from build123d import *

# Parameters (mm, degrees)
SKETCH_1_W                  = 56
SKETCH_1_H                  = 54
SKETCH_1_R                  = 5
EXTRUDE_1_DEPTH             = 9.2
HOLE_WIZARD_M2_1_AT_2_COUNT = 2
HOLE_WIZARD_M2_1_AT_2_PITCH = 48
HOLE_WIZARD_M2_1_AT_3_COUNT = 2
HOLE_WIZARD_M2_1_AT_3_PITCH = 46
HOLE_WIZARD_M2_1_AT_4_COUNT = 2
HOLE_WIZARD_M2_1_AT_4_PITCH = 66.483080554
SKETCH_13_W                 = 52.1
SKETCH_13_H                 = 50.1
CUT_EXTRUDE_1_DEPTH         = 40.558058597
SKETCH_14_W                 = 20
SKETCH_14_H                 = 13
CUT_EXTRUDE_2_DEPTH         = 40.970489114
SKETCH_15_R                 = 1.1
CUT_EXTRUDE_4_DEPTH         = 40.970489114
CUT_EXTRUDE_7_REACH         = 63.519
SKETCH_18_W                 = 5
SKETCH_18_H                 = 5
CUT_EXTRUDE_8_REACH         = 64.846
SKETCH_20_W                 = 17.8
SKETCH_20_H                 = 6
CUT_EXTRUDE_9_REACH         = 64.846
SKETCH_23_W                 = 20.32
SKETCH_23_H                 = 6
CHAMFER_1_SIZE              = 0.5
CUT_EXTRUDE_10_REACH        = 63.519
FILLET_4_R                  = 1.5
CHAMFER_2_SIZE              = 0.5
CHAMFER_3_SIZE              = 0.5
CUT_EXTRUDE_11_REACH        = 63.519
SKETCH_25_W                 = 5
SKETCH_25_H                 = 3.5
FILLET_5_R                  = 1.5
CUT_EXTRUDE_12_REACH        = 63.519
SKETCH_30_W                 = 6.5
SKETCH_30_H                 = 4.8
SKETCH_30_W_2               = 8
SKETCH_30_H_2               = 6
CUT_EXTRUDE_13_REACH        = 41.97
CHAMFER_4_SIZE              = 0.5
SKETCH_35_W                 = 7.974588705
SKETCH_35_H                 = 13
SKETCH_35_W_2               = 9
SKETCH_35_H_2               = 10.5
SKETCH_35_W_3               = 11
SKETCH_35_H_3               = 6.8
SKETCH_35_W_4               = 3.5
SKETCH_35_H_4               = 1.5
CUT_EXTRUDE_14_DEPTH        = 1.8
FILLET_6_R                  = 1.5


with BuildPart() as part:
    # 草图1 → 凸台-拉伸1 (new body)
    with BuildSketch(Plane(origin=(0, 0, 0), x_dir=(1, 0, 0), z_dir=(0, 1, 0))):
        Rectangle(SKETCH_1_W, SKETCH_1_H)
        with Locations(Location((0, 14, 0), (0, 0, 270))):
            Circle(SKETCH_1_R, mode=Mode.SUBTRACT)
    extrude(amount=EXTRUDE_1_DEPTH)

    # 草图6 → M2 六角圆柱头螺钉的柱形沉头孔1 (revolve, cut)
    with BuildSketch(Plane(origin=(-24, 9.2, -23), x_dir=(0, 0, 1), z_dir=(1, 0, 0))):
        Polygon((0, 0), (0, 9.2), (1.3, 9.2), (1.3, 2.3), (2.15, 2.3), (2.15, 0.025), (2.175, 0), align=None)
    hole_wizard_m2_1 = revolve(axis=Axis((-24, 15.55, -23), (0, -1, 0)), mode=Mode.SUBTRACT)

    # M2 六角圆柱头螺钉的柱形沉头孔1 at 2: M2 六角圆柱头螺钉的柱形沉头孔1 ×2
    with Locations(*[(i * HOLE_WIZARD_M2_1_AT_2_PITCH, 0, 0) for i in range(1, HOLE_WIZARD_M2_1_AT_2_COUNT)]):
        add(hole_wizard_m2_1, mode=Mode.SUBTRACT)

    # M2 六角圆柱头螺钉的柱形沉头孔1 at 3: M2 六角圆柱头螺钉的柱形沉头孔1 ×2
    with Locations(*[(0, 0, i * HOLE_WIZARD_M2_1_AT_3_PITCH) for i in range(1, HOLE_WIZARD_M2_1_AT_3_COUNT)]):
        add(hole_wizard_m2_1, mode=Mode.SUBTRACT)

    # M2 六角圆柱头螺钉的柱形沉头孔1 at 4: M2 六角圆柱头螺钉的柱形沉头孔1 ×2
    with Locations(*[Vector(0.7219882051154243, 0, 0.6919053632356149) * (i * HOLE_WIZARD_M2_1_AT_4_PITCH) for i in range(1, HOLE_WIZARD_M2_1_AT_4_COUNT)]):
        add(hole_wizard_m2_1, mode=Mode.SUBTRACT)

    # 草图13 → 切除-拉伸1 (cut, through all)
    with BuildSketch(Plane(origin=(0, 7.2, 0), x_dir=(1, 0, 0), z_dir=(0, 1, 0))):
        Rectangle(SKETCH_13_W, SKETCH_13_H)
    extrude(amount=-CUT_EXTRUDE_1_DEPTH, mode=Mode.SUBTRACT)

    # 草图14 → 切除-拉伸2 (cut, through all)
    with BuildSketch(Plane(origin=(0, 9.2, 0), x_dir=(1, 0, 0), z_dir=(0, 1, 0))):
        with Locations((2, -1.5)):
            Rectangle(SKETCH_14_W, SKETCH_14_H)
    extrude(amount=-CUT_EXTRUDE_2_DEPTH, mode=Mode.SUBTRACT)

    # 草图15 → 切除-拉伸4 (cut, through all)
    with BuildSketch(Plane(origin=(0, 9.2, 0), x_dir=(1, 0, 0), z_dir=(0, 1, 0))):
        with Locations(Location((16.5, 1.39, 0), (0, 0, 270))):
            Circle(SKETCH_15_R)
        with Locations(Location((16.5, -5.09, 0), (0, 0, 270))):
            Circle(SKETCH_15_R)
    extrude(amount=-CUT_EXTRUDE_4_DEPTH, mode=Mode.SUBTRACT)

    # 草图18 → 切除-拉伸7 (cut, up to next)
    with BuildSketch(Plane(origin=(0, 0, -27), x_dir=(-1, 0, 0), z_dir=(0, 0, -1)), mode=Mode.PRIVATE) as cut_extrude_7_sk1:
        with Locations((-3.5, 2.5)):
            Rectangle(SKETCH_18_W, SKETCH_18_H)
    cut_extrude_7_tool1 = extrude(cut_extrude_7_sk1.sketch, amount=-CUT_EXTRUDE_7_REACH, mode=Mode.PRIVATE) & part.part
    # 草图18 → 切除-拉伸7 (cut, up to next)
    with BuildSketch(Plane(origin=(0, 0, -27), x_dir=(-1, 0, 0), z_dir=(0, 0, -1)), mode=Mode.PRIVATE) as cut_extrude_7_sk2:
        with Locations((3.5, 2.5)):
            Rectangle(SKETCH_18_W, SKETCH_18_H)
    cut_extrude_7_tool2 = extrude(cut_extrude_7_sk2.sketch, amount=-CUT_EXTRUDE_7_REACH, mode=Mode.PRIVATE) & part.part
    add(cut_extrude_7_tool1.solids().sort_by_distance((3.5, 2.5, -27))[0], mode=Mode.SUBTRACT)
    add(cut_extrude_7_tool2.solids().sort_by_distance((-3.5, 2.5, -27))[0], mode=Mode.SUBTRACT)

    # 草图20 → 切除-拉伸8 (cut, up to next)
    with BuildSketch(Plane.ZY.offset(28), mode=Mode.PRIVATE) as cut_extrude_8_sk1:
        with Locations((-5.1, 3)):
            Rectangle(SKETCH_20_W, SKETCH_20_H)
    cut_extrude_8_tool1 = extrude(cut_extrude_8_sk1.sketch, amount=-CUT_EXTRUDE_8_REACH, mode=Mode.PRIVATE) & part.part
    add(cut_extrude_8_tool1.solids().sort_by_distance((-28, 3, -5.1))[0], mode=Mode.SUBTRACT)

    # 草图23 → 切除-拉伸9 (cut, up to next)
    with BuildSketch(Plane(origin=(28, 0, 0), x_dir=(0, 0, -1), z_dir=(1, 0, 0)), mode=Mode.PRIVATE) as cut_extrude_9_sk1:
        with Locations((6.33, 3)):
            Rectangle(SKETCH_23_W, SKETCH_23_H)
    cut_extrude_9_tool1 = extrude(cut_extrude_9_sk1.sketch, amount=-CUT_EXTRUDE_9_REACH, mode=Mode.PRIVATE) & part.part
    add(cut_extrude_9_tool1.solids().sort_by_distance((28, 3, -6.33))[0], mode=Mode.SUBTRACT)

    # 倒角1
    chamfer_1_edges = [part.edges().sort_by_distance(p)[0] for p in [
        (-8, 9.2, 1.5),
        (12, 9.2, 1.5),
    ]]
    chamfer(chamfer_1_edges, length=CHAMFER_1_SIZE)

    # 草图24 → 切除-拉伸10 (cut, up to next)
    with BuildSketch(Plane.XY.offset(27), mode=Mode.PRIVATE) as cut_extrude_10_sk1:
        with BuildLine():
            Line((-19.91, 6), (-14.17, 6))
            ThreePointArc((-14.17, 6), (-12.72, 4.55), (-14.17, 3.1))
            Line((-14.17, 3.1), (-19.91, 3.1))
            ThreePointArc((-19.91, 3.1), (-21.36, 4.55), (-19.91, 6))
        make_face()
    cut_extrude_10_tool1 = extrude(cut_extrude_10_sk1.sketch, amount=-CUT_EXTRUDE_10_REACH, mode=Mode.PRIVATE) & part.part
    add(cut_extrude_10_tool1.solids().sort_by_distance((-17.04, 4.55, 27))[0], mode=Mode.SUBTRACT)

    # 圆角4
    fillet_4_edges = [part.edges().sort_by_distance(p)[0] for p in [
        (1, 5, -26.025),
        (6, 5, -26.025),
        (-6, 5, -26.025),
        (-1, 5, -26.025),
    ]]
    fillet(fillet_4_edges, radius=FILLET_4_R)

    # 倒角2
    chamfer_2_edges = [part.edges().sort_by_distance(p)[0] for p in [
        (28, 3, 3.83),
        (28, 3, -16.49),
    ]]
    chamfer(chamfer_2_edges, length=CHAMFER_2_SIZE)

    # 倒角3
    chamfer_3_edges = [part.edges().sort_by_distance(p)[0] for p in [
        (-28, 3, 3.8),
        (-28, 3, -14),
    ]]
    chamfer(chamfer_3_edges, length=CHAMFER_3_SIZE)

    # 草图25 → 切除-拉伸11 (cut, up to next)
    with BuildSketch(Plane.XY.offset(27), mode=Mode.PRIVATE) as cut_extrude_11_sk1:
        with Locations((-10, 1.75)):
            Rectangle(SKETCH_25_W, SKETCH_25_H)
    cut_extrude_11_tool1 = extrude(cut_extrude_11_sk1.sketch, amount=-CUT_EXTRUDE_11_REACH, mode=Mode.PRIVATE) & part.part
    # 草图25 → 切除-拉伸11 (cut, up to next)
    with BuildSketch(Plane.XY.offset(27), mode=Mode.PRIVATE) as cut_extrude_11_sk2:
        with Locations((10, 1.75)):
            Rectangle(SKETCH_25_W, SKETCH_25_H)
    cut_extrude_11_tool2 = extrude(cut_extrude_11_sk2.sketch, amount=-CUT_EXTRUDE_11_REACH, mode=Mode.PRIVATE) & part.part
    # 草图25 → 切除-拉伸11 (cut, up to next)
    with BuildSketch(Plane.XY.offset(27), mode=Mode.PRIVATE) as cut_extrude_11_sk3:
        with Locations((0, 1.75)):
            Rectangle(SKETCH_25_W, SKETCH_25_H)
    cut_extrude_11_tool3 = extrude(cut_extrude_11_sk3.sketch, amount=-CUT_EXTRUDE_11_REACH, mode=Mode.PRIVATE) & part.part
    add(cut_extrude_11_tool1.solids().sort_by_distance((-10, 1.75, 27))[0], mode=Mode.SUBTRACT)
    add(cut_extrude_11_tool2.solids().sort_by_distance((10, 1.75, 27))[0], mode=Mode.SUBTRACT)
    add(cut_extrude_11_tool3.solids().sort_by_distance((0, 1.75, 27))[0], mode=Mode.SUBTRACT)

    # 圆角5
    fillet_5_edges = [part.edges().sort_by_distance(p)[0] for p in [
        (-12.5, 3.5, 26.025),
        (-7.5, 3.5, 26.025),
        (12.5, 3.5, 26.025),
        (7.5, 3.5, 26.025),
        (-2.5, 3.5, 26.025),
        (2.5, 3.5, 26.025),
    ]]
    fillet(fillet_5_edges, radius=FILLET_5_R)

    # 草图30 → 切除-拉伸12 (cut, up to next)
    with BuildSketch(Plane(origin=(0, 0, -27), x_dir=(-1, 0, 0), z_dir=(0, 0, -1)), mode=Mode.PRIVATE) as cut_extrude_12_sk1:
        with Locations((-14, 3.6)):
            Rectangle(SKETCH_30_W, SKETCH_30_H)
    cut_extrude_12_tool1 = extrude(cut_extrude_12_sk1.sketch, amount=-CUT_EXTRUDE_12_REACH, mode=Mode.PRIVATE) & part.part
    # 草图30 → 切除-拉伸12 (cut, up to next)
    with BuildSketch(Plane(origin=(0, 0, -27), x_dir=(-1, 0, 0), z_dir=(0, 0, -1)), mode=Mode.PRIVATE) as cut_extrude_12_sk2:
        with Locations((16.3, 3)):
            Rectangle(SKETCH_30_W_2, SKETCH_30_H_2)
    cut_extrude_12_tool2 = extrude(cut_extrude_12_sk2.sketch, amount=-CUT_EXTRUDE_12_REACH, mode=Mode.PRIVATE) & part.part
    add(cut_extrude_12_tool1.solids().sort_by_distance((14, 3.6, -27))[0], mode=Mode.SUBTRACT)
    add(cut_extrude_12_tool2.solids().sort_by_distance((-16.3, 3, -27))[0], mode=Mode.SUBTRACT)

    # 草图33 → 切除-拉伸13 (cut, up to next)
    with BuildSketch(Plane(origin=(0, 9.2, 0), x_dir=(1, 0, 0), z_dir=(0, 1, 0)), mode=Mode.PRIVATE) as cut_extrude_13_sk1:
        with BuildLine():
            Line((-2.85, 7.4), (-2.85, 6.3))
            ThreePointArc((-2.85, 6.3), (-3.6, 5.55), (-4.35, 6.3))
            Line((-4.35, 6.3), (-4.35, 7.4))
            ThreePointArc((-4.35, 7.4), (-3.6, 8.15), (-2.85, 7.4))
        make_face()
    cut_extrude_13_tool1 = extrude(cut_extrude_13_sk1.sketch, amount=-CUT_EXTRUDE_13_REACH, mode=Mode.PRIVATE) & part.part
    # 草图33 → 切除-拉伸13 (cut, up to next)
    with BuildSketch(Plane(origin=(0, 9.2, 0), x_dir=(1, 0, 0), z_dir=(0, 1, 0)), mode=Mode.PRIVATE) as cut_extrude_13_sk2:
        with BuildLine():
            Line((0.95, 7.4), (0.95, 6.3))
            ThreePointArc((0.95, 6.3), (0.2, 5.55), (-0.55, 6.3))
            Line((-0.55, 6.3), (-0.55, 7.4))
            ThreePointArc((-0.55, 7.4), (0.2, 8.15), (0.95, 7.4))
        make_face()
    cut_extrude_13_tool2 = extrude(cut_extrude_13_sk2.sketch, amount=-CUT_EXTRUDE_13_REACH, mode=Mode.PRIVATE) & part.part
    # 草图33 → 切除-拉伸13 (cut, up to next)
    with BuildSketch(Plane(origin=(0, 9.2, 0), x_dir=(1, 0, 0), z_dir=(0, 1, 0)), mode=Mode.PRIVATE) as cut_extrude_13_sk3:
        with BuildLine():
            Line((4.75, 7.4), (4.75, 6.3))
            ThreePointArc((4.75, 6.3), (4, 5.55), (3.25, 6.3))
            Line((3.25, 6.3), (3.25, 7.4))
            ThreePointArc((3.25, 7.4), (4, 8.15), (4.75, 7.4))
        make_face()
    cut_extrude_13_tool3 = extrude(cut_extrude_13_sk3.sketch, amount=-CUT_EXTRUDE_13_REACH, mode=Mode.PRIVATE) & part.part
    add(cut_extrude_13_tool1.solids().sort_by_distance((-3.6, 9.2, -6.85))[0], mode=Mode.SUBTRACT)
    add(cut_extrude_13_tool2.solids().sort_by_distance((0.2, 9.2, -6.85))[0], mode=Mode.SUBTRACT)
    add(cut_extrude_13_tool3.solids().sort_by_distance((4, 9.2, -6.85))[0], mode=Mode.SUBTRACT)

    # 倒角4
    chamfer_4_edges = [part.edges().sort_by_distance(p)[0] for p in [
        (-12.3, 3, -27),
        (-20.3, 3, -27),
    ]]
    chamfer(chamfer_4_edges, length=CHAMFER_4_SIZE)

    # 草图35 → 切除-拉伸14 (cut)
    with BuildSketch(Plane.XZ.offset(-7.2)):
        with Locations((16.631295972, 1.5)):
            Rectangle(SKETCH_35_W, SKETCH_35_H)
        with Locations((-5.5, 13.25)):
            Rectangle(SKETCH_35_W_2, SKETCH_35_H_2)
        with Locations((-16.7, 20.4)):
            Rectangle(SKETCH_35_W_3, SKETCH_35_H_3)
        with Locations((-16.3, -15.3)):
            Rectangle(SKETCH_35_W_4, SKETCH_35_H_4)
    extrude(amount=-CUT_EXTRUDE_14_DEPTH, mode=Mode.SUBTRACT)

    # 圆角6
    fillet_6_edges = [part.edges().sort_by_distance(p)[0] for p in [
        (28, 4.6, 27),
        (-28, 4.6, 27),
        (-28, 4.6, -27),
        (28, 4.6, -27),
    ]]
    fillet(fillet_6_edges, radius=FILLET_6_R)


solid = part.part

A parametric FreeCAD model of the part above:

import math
import FreeCAD as App
import Part
import Sketcher
Q = App.Units.Quantity


def edges_at(feature, points):
    """Names of the edges that pass closest to the given points."""
    edges = feature.Shape.Edges
    near = lambda p: min(range(len(edges)), key=lambda i: edges[i].distToShape(Part.Vertex(*p))[0])
    return sorted({f"Edge{near(p) + 1}" for p in points})

doc = App.newDocument("Part")
body = doc.addObject("PartDesign::Body", "Body")

# Sketch on XZ plane
sketch1 = body.newObject("Sketcher::SketchObject", "Sketch")
sketch1.AttachmentSupport = (doc.getObject("XZ_Plane"), [""])
sketch1.MapMode = "FlatFace"
sketch1.addGeometry(Part.LineSegment(App.Vector(-28, -27, 0), App.Vector(-28, 27, 0)), False)
sketch1.addGeometry(Part.LineSegment(App.Vector(-28, 27, 0), App.Vector(28, 27, 0)), False)
sketch1.addGeometry(Part.LineSegment(App.Vector(28, 27, 0), App.Vector(28, -27, 0)), False)
sketch1.addGeometry(Part.LineSegment(App.Vector(28, -27, 0), App.Vector(-28, -27, 0)), False)
sketch1.addGeometry(Part.Circle(App.Vector(0, -14, 0), App.Vector(0, 0, 1), 5), False)
sketch1.addConstraint(Sketcher.Constraint("Coincident", 0, 2, 1, 1))
sketch1.addConstraint(Sketcher.Constraint("Coincident", 1, 2, 2, 1))
sketch1.addConstraint(Sketcher.Constraint("Coincident", 2, 2, 3, 1))
sketch1.addConstraint(Sketcher.Constraint("Coincident", 3, 2, 0, 1))
sketch1.addConstraint(Sketcher.Constraint("Vertical", 0))
sketch1.addConstraint(Sketcher.Constraint("Horizontal", 1))
sketch1.addConstraint(Sketcher.Constraint("Vertical", 2))
sketch1.addConstraint(Sketcher.Constraint("Horizontal", 3))
sketch1.addConstraint(Sketcher.Constraint("Symmetric", 0, 2, 2, 2, -1, 1))
sketch1.addConstraint(Sketcher.Constraint("PointOnObject", 4, 3, -2))
sketch1.addConstraint(Sketcher.Constraint("Diameter", 4, 10.0))
sketch1.addConstraint(Sketcher.Constraint("DistanceX", 1, 1, 1, 2, 56.0))
sketch1.addConstraint(Sketcher.Constraint("DistanceY", 0, 1, 0, 2, 54.0))
sketch1.addConstraint(Sketcher.Constraint("DistanceY", 4, 3, -1, 1, 14.0))
pad1 = body.newObject("PartDesign::Pad", "Pad")
pad1.Profile = sketch1
pad1.Length = 9.2
pad1.Reversed = True

# Sketch on YZ plane
sketch2 = body.newObject("Sketcher::SketchObject", "Sketch001")
sketch2.AttachmentSupport = (doc.getObject("YZ_Plane"), [""])
sketch2.MapMode = "FlatFace"
sketch2.AttachmentOffset = App.Placement(App.Vector(0, 0, -24), App.Rotation())
sketch2.addGeometry(Part.LineSegment(App.Vector(0, -23, 0), App.Vector(9.2, -23, 0)), False)
sketch2.addGeometry(Part.LineSegment(App.Vector(9.2, -23, 0), App.Vector(9.2, -20.825, 0)), False)
sketch2.addGeometry(Part.LineSegment(App.Vector(9.2, -20.825, 0), App.Vector(9.175, -20.85, 0)), False)
sketch2.addGeometry(Part.LineSegment(App.Vector(9.175, -20.85, 0), App.Vector(6.9, -20.85, 0)), False)
sketch2.addGeometry(Part.LineSegment(App.Vector(6.9, -20.85, 0), App.Vector(6.9, -21.7, 0)), False)
sketch2.addGeometry(Part.LineSegment(App.Vector(6.9, -21.7, 0), App.Vector(0, -21.7, 0)), False)
sketch2.addGeometry(Part.LineSegment(App.Vector(0, -21.7, 0), App.Vector(0, -23, 0)), False)
sketch2.addGeometry(Part.LineSegment(App.Vector(9.2, -23, 0), App.Vector(0, -23, 0)), True)  # axis
sketch2.addConstraint(Sketcher.Constraint("Coincident", 0, 2, 1, 1))
sketch2.addConstraint(Sketcher.Constraint("Coincident", 1, 2, 2, 1))
sketch2.addConstraint(Sketcher.Constraint("Coincident", 2, 2, 3, 1))
sketch2.addConstraint(Sketcher.Constraint("Coincident", 3, 2, 4, 1))
sketch2.addConstraint(Sketcher.Constraint("Coincident", 4, 2, 5, 1))
sketch2.addConstraint(Sketcher.Constraint("Coincident", 5, 2, 6, 1))
sketch2.addConstraint(Sketcher.Constraint("Coincident", 6, 2, 0, 1))
sketch2.addConstraint(Sketcher.Constraint("Horizontal", 0))
sketch2.addConstraint(Sketcher.Constraint("Vertical", 1))
sketch2.addConstraint(Sketcher.Constraint("Horizontal", 3))
sketch2.addConstraint(Sketcher.Constraint("Vertical", 4))
sketch2.addConstraint(Sketcher.Constraint("Horizontal", 5))
sketch2.addConstraint(Sketcher.Constraint("Vertical", 6))
sketch2.addConstraint(Sketcher.Constraint("Horizontal", 7))
sketch2.addConstraint(Sketcher.Constraint("Coincident", 7, 1, 0, 2))
sketch2.addConstraint(Sketcher.Constraint("PointOnObject", 5, 2, -2))
sketch2.addConstraint(Sketcher.Constraint("PointOnObject", 7, 2, -2))
sketch2.addConstraint(Sketcher.Constraint("Angle", 2, Q("-135 deg")))
sketch2.addConstraint(Sketcher.Constraint("DistanceX", 0, 1, 0, 2, 9.2))
sketch2.addConstraint(Sketcher.Constraint("DistanceX", 5, 2, 5, 1, 6.9))
sketch2.addConstraint(Sketcher.Constraint("DistanceY", 6, 2, 6, 1, 1.3))
sketch2.addConstraint(Sketcher.Constraint("DistanceY", 0, 2, -1, 1, 23.0))
sketch2.addConstraint(Sketcher.Constraint("DistanceY", 4, 2, 4, 1, 0.85))
sketch2.addConstraint(Sketcher.Constraint("DistanceX", 3, 2, 3, 1, 2.275))
groove = body.newObject("PartDesign::Groove", "Groove")
groove.Profile = sketch2
groove.ReferenceAxis = (sketch2, ["Axis0"])
groove.Angle = 360
doc.recompute()

linearpattern = body.newObject("PartDesign::LinearPattern", "LinearPattern")
linearpattern.Originals = [groove]
linearpattern.Direction = (doc.getObject("X_Axis"), [""])
linearpattern.Mode = "offset"
linearpattern.Offset = 48
linearpattern.Occurrences = 2
body.Tip = linearpattern
doc.recompute()

linearpattern2 = body.newObject("PartDesign::LinearPattern", "LinearPattern001")
linearpattern2.Originals = [groove]
linearpattern2.Direction = (doc.getObject("Z_Axis"), [""])
linearpattern2.Mode = "offset"
linearpattern2.Offset = 46
linearpattern2.Occurrences = 2
body.Tip = linearpattern2
doc.recompute()

datumline = body.newObject("PartDesign::Line", "DatumLine")
datumline.Placement = App.Placement(App.Vector(0, 0, 0), App.Rotation(App.Vector(0, 0, 1), App.Vector(0.721988205, 0, 0.691905363)))
linearpattern3 = body.newObject("PartDesign::LinearPattern", "LinearPattern002")
linearpattern3.Originals = [groove]
linearpattern3.Direction = (datumline, [""])
linearpattern3.Mode = "offset"
linearpattern3.Offset = 66.483081
linearpattern3.Occurrences = 2
body.Tip = linearpattern3

# Sketch on XZ plane
sketch3 = body.newObject("Sketcher::SketchObject", "Sketch002")
sketch3.AttachmentSupport = (doc.getObject("XZ_Plane"), [""])
sketch3.MapMode = "FlatFace"
sketch3.AttachmentOffset = App.Placement(App.Vector(0, 0, -7.2), App.Rotation())
sketch3.addGeometry(Part.LineSegment(App.Vector(-26, -25, 0), App.Vector(-26, 25, 0)), False)
sketch3.addGeometry(Part.LineSegment(App.Vector(-26, 25, 0), App.Vector(26, 25, 0)), False)
sketch3.addGeometry(Part.LineSegment(App.Vector(26, 25, 0), App.Vector(26, -25, 0)), False)
sketch3.addGeometry(Part.LineSegment(App.Vector(26, -25, 0), App.Vector(-26, -25, 0)), False)
sketch3.addConstraint(Sketcher.Constraint("Coincident", 0, 2, 1, 1))
sketch3.addConstraint(Sketcher.Constraint("Coincident", 1, 2, 2, 1))
sketch3.addConstraint(Sketcher.Constraint("Coincident", 2, 2, 3, 1))
sketch3.addConstraint(Sketcher.Constraint("Coincident", 3, 2, 0, 1))
sketch3.addConstraint(Sketcher.Constraint("Vertical", 0))
sketch3.addConstraint(Sketcher.Constraint("Horizontal", 1))
sketch3.addConstraint(Sketcher.Constraint("Vertical", 2))
sketch3.addConstraint(Sketcher.Constraint("Horizontal", 3))
sketch3.addConstraint(Sketcher.Constraint("Symmetric", 0, 2, 2, 2, -1, 1))
sketch3.addConstraint(Sketcher.Constraint("DistanceX", 1, 1, 1, 2, 52.1))
sketch3.addConstraint(Sketcher.Constraint("DistanceY", 0, 1, 0, 2, 50.1))
pocket1 = body.newObject("PartDesign::Pocket", "Pocket")
pocket1.Profile = sketch3
pocket1.Type = "ThroughAll"
pocket1.Reversed = True

# Sketch on XZ plane
sketch4 = body.newObject("Sketcher::SketchObject", "Sketch003")
sketch4.AttachmentSupport = (doc.getObject("XZ_Plane"), [""])
sketch4.MapMode = "FlatFace"
sketch4.AttachmentOffset = App.Placement(App.Vector(0, 0, -9.2), App.Rotation())
sketch4.addGeometry(Part.LineSegment(App.Vector(-8, -5, 0), App.Vector(-8, 8, 0)), False)
sketch4.addGeometry(Part.LineSegment(App.Vector(-8, 8, 0), App.Vector(12, 8, 0)), False)
sketch4.addGeometry(Part.LineSegment(App.Vector(12, 8, 0), App.Vector(12, -5, 0)), False)
sketch4.addGeometry(Part.LineSegment(App.Vector(12, -5, 0), App.Vector(-8, -5, 0)), False)
sketch4.addConstraint(Sketcher.Constraint("Coincident", 0, 2, 1, 1))
sketch4.addConstraint(Sketcher.Constraint("Coincident", 1, 2, 2, 1))
sketch4.addConstraint(Sketcher.Constraint("Coincident", 2, 2, 3, 1))
sketch4.addConstraint(Sketcher.Constraint("Coincident", 3, 2, 0, 1))
sketch4.addConstraint(Sketcher.Constraint("Vertical", 0))
sketch4.addConstraint(Sketcher.Constraint("Horizontal", 1))
sketch4.addConstraint(Sketcher.Constraint("Vertical", 2))
sketch4.addConstraint(Sketcher.Constraint("Horizontal", 3))
sketch4.addConstraint(Sketcher.Constraint("DistanceX", 1, 1, 1, 2, 20.0))
sketch4.addConstraint(Sketcher.Constraint("DistanceY", 0, 1, 0, 2, 13.0))
sketch4.addConstraint(Sketcher.Constraint("DistanceX", 0, 2, -1, 1, 8.0))
sketch4.addConstraint(Sketcher.Constraint("DistanceY", -1, 1, 0, 2, 8.0))
pocket2 = body.newObject("PartDesign::Pocket", "Pocket001")
pocket2.Profile = sketch4
pocket2.Type = "ThroughAll"
pocket2.Reversed = True

# Sketch on XZ plane
sketch5 = body.newObject("Sketcher::SketchObject", "Sketch004")
sketch5.AttachmentSupport = (doc.getObject("XZ_Plane"), [""])
sketch5.MapMode = "FlatFace"
sketch5.AttachmentOffset = App.Placement(App.Vector(0, 0, -9.2), App.Rotation())
sketch5.addGeometry(Part.Circle(App.Vector(16.5, -1.4, 0), App.Vector(0, 0, 1), 1.1), False)
sketch5.addGeometry(Part.Circle(App.Vector(16.5, 5.1, 0), App.Vector(0, 0, 1), 1.1), False)
sketch5.addConstraint(Sketcher.Constraint("Equal", 0, 1))
sketch5.addConstraint(Sketcher.Constraint("Vertical", 0, 3, 1, 3))
sketch5.addConstraint(Sketcher.Constraint("Diameter", 0, 2.2))
sketch5.addConstraint(Sketcher.Constraint("DistanceX", -1, 1, 0, 3, 16.5))
sketch5.addConstraint(Sketcher.Constraint("DistanceY", 0, 3, -1, 1, 1.39))
sketch5.addConstraint(Sketcher.Constraint("DistanceY", -1, 1, 1, 3, 5.09))
pocket3 = body.newObject("PartDesign::Pocket", "Pocket002")
pocket3.Profile = sketch5
pocket3.Type = "ThroughAll"
pocket3.Reversed = True

# Sketch on XY plane
sketch6 = body.newObject("Sketcher::SketchObject", "Sketch005")
sketch6.AttachmentSupport = (doc.getObject("XY_Plane"), [""])
sketch6.MapMode = "FlatFace"
sketch6.AttachmentOffset = App.Placement(App.Vector(0, 0, -27), App.Rotation())
sketch6.addGeometry(Part.LineSegment(App.Vector(6, 5, 0), App.Vector(6, 0, 0)), False)
sketch6.addGeometry(Part.LineSegment(App.Vector(6, 0, 0), App.Vector(1, 0, 0)), False)
sketch6.addGeometry(Part.LineSegment(App.Vector(1, 0, 0), App.Vector(1, 5, 0)), False)
sketch6.addGeometry(Part.LineSegment(App.Vector(1, 5, 0), App.Vector(6, 5, 0)), False)
sketch6.addConstraint(Sketcher.Constraint("Coincident", 0, 2, 1, 1))
sketch6.addConstraint(Sketcher.Constraint("Coincident", 1, 2, 2, 1))
sketch6.addConstraint(Sketcher.Constraint("Coincident", 2, 2, 3, 1))
sketch6.addConstraint(Sketcher.Constraint("Coincident", 3, 2, 0, 1))
sketch6.addConstraint(Sketcher.Constraint("Vertical", 0))
sketch6.addConstraint(Sketcher.Constraint("Horizontal", 1))
sketch6.addConstraint(Sketcher.Constraint("Vertical", 2))
sketch6.addConstraint(Sketcher.Constraint("Horizontal", 3))
sketch6.addConstraint(Sketcher.Constraint("PointOnObject", 0, 2, -1))
sketch6.addConstraint(Sketcher.Constraint("Equal", 3, 0))
sketch6.addConstraint(Sketcher.Constraint("DistanceX", 1, 2, 1, 1, 5.0))
sketch6.addConstraint(Sketcher.Constraint("DistanceX", -1, 1, 0, 2, 6.0))
pocket4 = body.newObject("PartDesign::Pocket", "Pocket003")
pocket4.Profile = sketch6
pocket4.Type = "UpToFirst"
pocket4.Reversed = True

# Sketch on XY plane
sketch7 = body.newObject("Sketcher::SketchObject", "Sketch006")
sketch7.AttachmentSupport = (doc.getObject("XY_Plane"), [""])
sketch7.MapMode = "FlatFace"
sketch7.AttachmentOffset = App.Placement(App.Vector(0, 0, -27), App.Rotation())
sketch7.addGeometry(Part.LineSegment(App.Vector(-1, 5, 0), App.Vector(-1, 0, 0)), False)
sketch7.addGeometry(Part.LineSegment(App.Vector(-1, 0, 0), App.Vector(-6, 0, 0)), False)
sketch7.addGeometry(Part.LineSegment(App.Vector(-6, 0, 0), App.Vector(-6, 5, 0)), False)
sketch7.addGeometry(Part.LineSegment(App.Vector(-6, 5, 0), App.Vector(-1, 5, 0)), False)
sketch7.addConstraint(Sketcher.Constraint("Coincident", 0, 2, 1, 1))
sketch7.addConstraint(Sketcher.Constraint("Coincident", 1, 2, 2, 1))
sketch7.addConstraint(Sketcher.Constraint("Coincident", 2, 2, 3, 1))
sketch7.addConstraint(Sketcher.Constraint("Coincident", 3, 2, 0, 1))
sketch7.addConstraint(Sketcher.Constraint("Vertical", 0))
sketch7.addConstraint(Sketcher.Constraint("Horizontal", 1))
sketch7.addConstraint(Sketcher.Constraint("Vertical", 2))
sketch7.addConstraint(Sketcher.Constraint("Horizontal", 3))
sketch7.addConstraint(Sketcher.Constraint("PointOnObject", 0, 2, -1))
sketch7.addConstraint(Sketcher.Constraint("Equal", 3, 0))
sketch7.addConstraint(Sketcher.Constraint("DistanceX", 1, 2, 1, 1, 5.0))
sketch7.addConstraint(Sketcher.Constraint("DistanceX", 0, 2, -1, 1, 1.0))
pocket5 = body.newObject("PartDesign::Pocket", "Pocket004")
pocket5.Profile = sketch7
pocket5.Type = "UpToFirst"
pocket5.Reversed = True

# Sketch on YZ plane
sketch8 = body.newObject("Sketcher::SketchObject", "Sketch007")
sketch8.AttachmentSupport = (doc.getObject("YZ_Plane"), [""])
sketch8.MapMode = "FlatFace"
sketch8.AttachmentOffset = App.Placement(App.Vector(0, 0, -28), App.Rotation())
sketch8.addGeometry(Part.LineSegment(App.Vector(6, -14, 0), App.Vector(0, -14, 0)), False)
sketch8.addGeometry(Part.LineSegment(App.Vector(0, -14, 0), App.Vector(0, 4, 0)), False)
sketch8.addGeometry(Part.LineSegment(App.Vector(0, 4, 0), App.Vector(6, 4, 0)), False)
sketch8.addGeometry(Part.LineSegment(App.Vector(6, 4, 0), App.Vector(6, -14, 0)), False)
sketch8.addConstraint(Sketcher.Constraint("Coincident", 0, 2, 1, 1))
sketch8.addConstraint(Sketcher.Constraint("Coincident", 1, 2, 2, 1))
sketch8.addConstraint(Sketcher.Constraint("Coincident", 2, 2, 3, 1))
sketch8.addConstraint(Sketcher.Constraint("Coincident", 3, 2, 0, 1))
sketch8.addConstraint(Sketcher.Constraint("Horizontal", 0))
sketch8.addConstraint(Sketcher.Constraint("Vertical", 1))
sketch8.addConstraint(Sketcher.Constraint("Horizontal", 2))
sketch8.addConstraint(Sketcher.Constraint("Vertical", 3))
sketch8.addConstraint(Sketcher.Constraint("PointOnObject", 0, 2, -2))
sketch8.addConstraint(Sketcher.Constraint("DistanceX", 0, 2, 0, 1, 6.0))
sketch8.addConstraint(Sketcher.Constraint("DistanceY", 1, 1, 1, 2, 17.8))
sketch8.addConstraint(Sketcher.Constraint("DistanceY", 0, 2, -1, 1, 14.0))
pocket6 = body.newObject("PartDesign::Pocket", "Pocket005")
pocket6.Profile = sketch8
pocket6.Type = "UpToFirst"
pocket6.Reversed = True

# Sketch on YZ plane
sketch9 = body.newObject("Sketcher::SketchObject", "Sketch008")
sketch9.AttachmentSupport = (doc.getObject("YZ_Plane"), [""])
sketch9.MapMode = "FlatFace"
sketch9.AttachmentOffset = App.Placement(App.Vector(0, 0, 28), App.Rotation())
sketch9.addGeometry(Part.LineSegment(App.Vector(6, 4, 0), App.Vector(0, 4, 0)), False)
sketch9.addGeometry(Part.LineSegment(App.Vector(0, 4, 0), App.Vector(0, -16, 0)), False)
sketch9.addGeometry(Part.LineSegment(App.Vector(0, -16, 0), App.Vector(6, -16, 0)), False)
sketch9.addGeometry(Part.LineSegment(App.Vector(6, -16, 0), App.Vector(6, 4, 0)), False)
sketch9.addConstraint(Sketcher.Constraint("Coincident", 0, 2, 1, 1))
sketch9.addConstraint(Sketcher.Constraint("Coincident", 1, 2, 2, 1))
sketch9.addConstraint(Sketcher.Constraint("Coincident", 2, 2, 3, 1))
sketch9.addConstraint(Sketcher.Constraint("Coincident", 3, 2, 0, 1))
sketch9.addConstraint(Sketcher.Constraint("Horizontal", 0))
sketch9.addConstraint(Sketcher.Constraint("Vertical", 1))
sketch9.addConstraint(Sketcher.Constraint("Horizontal", 2))
sketch9.addConstraint(Sketcher.Constraint("Vertical", 3))
sketch9.addConstraint(Sketcher.Constraint("PointOnObject", 0, 2, -2))
sketch9.addConstraint(Sketcher.Constraint("DistanceX", 0, 2, 0, 1, 6.0))
sketch9.addConstraint(Sketcher.Constraint("DistanceY", 1, 2, 1, 1, 20.32))
sketch9.addConstraint(Sketcher.Constraint("DistanceY", -1, 1, 0, 2, 3.83))
pocket7 = body.newObject("PartDesign::Pocket", "Pocket006")
pocket7.Profile = sketch9
pocket7.Type = "UpToFirst"
doc.recompute()

chamfer = body.newObject("PartDesign::Chamfer", "Chamfer")
chamfer.Base = (pocket7, edges_at(pocket7, [(-8, 9.2, 1.5), (12, 9.2, 1.5)]))
chamfer.Size = 0.5

# Sketch on XY plane
sketch10 = body.newObject("Sketcher::SketchObject", "Sketch009")
sketch10.AttachmentSupport = (doc.getObject("XY_Plane"), [""])
sketch10.MapMode = "FlatFace"
sketch10.AttachmentOffset = App.Placement(App.Vector(0, 0, 27), App.Rotation())
sketch10.addGeometry(Part.LineSegment(App.Vector(-14.2, 6, 0), App.Vector(-19.9, 6, 0)), False)
sketch10.addGeometry(Part.ArcOfCircle(Part.Circle(App.Vector(-19.9, 4.5, 0), App.Vector(0, 0, 1), 1.4), math.radians(90), math.radians(270)), False)
sketch10.addGeometry(Part.LineSegment(App.Vector(-19.9, 3.1, 0), App.Vector(-14.2, 3.1, 0)), False)
sketch10.addGeometry(Part.ArcOfCircle(Part.Circle(App.Vector(-14.2, 4.5, 0), App.Vector(0, 0, 1), 1.4), math.radians(-90), math.radians(90)), False)
sketch10.addConstraint(Sketcher.Constraint("Tangent", 0, 2, 1, 1))
sketch10.addConstraint(Sketcher.Constraint("Tangent", 1, 2, 2, 1))
sketch10.addConstraint(Sketcher.Constraint("Tangent", 2, 2, 3, 1))
sketch10.addConstraint(Sketcher.Constraint("Tangent", 3, 2, 0, 1))
sketch10.addConstraint(Sketcher.Constraint("Horizontal", 0))
sketch10.addConstraint(Sketcher.Constraint("Horizontal", 2))
sketch10.addConstraint(Sketcher.Constraint("Radius", 1, 1.45))
sketch10.addConstraint(Sketcher.Constraint("DistanceY", -1, 1, 0, 2, 6.0))
sketch10.addConstraint(Sketcher.Constraint("DistanceX", 0, 2, 0, 1, 5.74))
sketch10.addConstraint(Sketcher.Constraint("DistanceX", 1, 3, -1, 1, 19.91))
pocket8 = body.newObject("PartDesign::Pocket", "Pocket007")
pocket8.Profile = sketch10
pocket8.Type = "UpToFirst"
doc.recompute()

fillet = body.newObject("PartDesign::Fillet", "Fillet")
fillet.Base = (pocket8, edges_at(pocket8, [
    (1, 5, -26.025),
    (6, 5, -26.025),
    (-6, 5, -26.025),
    (-1, 5, -26.025),
]))
fillet.Radius = 1.5
doc.recompute()

chamfer2 = body.newObject("PartDesign::Chamfer", "Chamfer001")
chamfer2.Base = (fillet, edges_at(fillet, [(28, 3, 3.83), (28, 3, -16.49)]))
chamfer2.Size = 0.5
doc.recompute()

chamfer3 = body.newObject("PartDesign::Chamfer", "Chamfer002")
chamfer3.Base = (chamfer2, edges_at(chamfer2, [(-28, 3, 3.8), (-28, 3, -14)]))
chamfer3.Size = 0.5

# Sketch on XY plane
sketch11 = body.newObject("Sketcher::SketchObject", "Sketch010")
sketch11.AttachmentSupport = (doc.getObject("XY_Plane"), [""])
sketch11.MapMode = "FlatFace"
sketch11.AttachmentOffset = App.Placement(App.Vector(0, 0, 27), App.Rotation())
sketch11.addGeometry(Part.LineSegment(App.Vector(-12.5, 3.5, 0), App.Vector(-12.5, 0, 0)), False)
sketch11.addGeometry(Part.LineSegment(App.Vector(-12.5, 0, 0), App.Vector(-7.5, 0, 0)), False)
sketch11.addGeometry(Part.LineSegment(App.Vector(-7.5, 0, 0), App.Vector(-7.5, 3.5, 0)), False)
sketch11.addGeometry(Part.LineSegment(App.Vector(-7.5, 3.5, 0), App.Vector(-12.5, 3.5, 0)), False)
sketch11.addConstraint(Sketcher.Constraint("Coincident", 0, 2, 1, 1))
sketch11.addConstraint(Sketcher.Constraint("Coincident", 1, 2, 2, 1))
sketch11.addConstraint(Sketcher.Constraint("Coincident", 2, 2, 3, 1))
sketch11.addConstraint(Sketcher.Constraint("Coincident", 3, 2, 0, 1))
sketch11.addConstraint(Sketcher.Constraint("Vertical", 0))
sketch11.addConstraint(Sketcher.Constraint("Horizontal", 1))
sketch11.addConstraint(Sketcher.Constraint("Vertical", 2))
sketch11.addConstraint(Sketcher.Constraint("Horizontal", 3))
sketch11.addConstraint(Sketcher.Constraint("PointOnObject", 0, 2, -1))
sketch11.addConstraint(Sketcher.Constraint("DistanceX", 1, 1, 1, 2, 5.0))
sketch11.addConstraint(Sketcher.Constraint("DistanceY", 0, 2, 0, 1, 3.5))
sketch11.addConstraint(Sketcher.Constraint("DistanceX", 0, 2, -1, 1, 12.5))
pocket9 = body.newObject("PartDesign::Pocket", "Pocket008")
pocket9.Profile = sketch11
pocket9.Type = "UpToFirst"

# Sketch on XY plane
sketch12 = body.newObject("Sketcher::SketchObject", "Sketch011")
sketch12.AttachmentSupport = (doc.getObject("XY_Plane"), [""])
sketch12.MapMode = "FlatFace"
sketch12.AttachmentOffset = App.Placement(App.Vector(0, 0, 27), App.Rotation())
sketch12.addGeometry(Part.LineSegment(App.Vector(7.5, 3.5, 0), App.Vector(7.5, 0, 0)), False)
sketch12.addGeometry(Part.LineSegment(App.Vector(7.5, 0, 0), App.Vector(12.5, 0, 0)), False)
sketch12.addGeometry(Part.LineSegment(App.Vector(12.5, 0, 0), App.Vector(12.5, 3.5, 0)), False)
sketch12.addGeometry(Part.LineSegment(App.Vector(12.5, 3.5, 0), App.Vector(7.5, 3.5, 0)), False)
sketch12.addConstraint(Sketcher.Constraint("Coincident", 0, 2, 1, 1))
sketch12.addConstraint(Sketcher.Constraint("Coincident", 1, 2, 2, 1))
sketch12.addConstraint(Sketcher.Constraint("Coincident", 2, 2, 3, 1))
sketch12.addConstraint(Sketcher.Constraint("Coincident", 3, 2, 0, 1))
sketch12.addConstraint(Sketcher.Constraint("Vertical", 0))
sketch12.addConstraint(Sketcher.Constraint("Horizontal", 1))
sketch12.addConstraint(Sketcher.Constraint("Vertical", 2))
sketch12.addConstraint(Sketcher.Constraint("Horizontal", 3))
sketch12.addConstraint(Sketcher.Constraint("PointOnObject", 0, 2, -1))
sketch12.addConstraint(Sketcher.Constraint("DistanceX", 1, 1, 1, 2, 5.0))
sketch12.addConstraint(Sketcher.Constraint("DistanceY", 0, 2, 0, 1, 3.5))
sketch12.addConstraint(Sketcher.Constraint("DistanceX", -1, 1, 0, 2, 7.5))
pocket10 = body.newObject("PartDesign::Pocket", "Pocket009")
pocket10.Profile = sketch12
pocket10.Type = "UpToFirst"

# Sketch on XY plane
sketch13 = body.newObject("Sketcher::SketchObject", "Sketch012")
sketch13.AttachmentSupport = (doc.getObject("XY_Plane"), [""])
sketch13.MapMode = "FlatFace"
sketch13.AttachmentOffset = App.Placement(App.Vector(0, 0, 27), App.Rotation())
sketch13.addGeometry(Part.LineSegment(App.Vector(-2.5, 3.5, 0), App.Vector(-2.5, 0, 0)), False)
sketch13.addGeometry(Part.LineSegment(App.Vector(-2.5, 0, 0), App.Vector(2.5, 0, 0)), False)
sketch13.addGeometry(Part.LineSegment(App.Vector(2.5, 0, 0), App.Vector(2.5, 3.5, 0)), False)
sketch13.addGeometry(Part.LineSegment(App.Vector(2.5, 3.5, 0), App.Vector(-2.5, 3.5, 0)), False)
sketch13.addConstraint(Sketcher.Constraint("Coincident", 0, 2, 1, 1))
sketch13.addConstraint(Sketcher.Constraint("Coincident", 1, 2, 2, 1))
sketch13.addConstraint(Sketcher.Constraint("Coincident", 2, 2, 3, 1))
sketch13.addConstraint(Sketcher.Constraint("Coincident", 3, 2, 0, 1))
sketch13.addConstraint(Sketcher.Constraint("Vertical", 0))
sketch13.addConstraint(Sketcher.Constraint("Horizontal", 1))
sketch13.addConstraint(Sketcher.Constraint("Vertical", 2))
sketch13.addConstraint(Sketcher.Constraint("Horizontal", 3))
sketch13.addConstraint(Sketcher.Constraint("Symmetric", 0, 2, 1, 2, -1, 1))
sketch13.addConstraint(Sketcher.Constraint("DistanceX", 1, 1, 1, 2, 5.0))
sketch13.addConstraint(Sketcher.Constraint("DistanceY", 0, 2, 0, 1, 3.5))
pocket11 = body.newObject("PartDesign::Pocket", "Pocket010")
pocket11.Profile = sketch13
pocket11.Type = "UpToFirst"
doc.recompute()

fillet2 = body.newObject("PartDesign::Fillet", "Fillet001")
fillet2.Base = (pocket11, edges_at(pocket11, [
    (-12.5, 3.5, 26.025),
    (-7.5, 3.5, 26.025),
    (12.5, 3.5, 26.025),
    (7.5, 3.5, 26.025),
    (-2.5, 3.5, 26.025),
    (2.5, 3.5, 26.025),
]))
fillet2.Radius = 1.5

# Sketch on XY plane
sketch14 = body.newObject("Sketcher::SketchObject", "Sketch013")
sketch14.AttachmentSupport = (doc.getObject("XY_Plane"), [""])
sketch14.MapMode = "FlatFace"
sketch14.AttachmentOffset = App.Placement(App.Vector(0, 0, -27), App.Rotation())
sketch14.addGeometry(Part.LineSegment(App.Vector(17.2, 6, 0), App.Vector(17.2, 1.2, 0)), False)
sketch14.addGeometry(Part.LineSegment(App.Vector(17.2, 1.2, 0), App.Vector(10.8, 1.2, 0)), False)
sketch14.addGeometry(Part.LineSegment(App.Vector(10.8, 1.2, 0), App.Vector(10.8, 6, 0)), False)
sketch14.addGeometry(Part.LineSegment(App.Vector(10.8, 6, 0), App.Vector(17.2, 6, 0)), False)
sketch14.addConstraint(Sketcher.Constraint("Coincident", 0, 2, 1, 1))
sketch14.addConstraint(Sketcher.Constraint("Coincident", 1, 2, 2, 1))
sketch14.addConstraint(Sketcher.Constraint("Coincident", 2, 2, 3, 1))
sketch14.addConstraint(Sketcher.Constraint("Coincident", 3, 2, 0, 1))
sketch14.addConstraint(Sketcher.Constraint("Vertical", 0))
sketch14.addConstraint(Sketcher.Constraint("Horizontal", 1))
sketch14.addConstraint(Sketcher.Constraint("Vertical", 2))
sketch14.addConstraint(Sketcher.Constraint("Horizontal", 3))
sketch14.addConstraint(Sketcher.Constraint("DistanceX", 1, 2, 1, 1, 6.5))
sketch14.addConstraint(Sketcher.Constraint("DistanceY", 0, 2, 0, 1, 4.8))
sketch14.addConstraint(Sketcher.Constraint("DistanceY", -1, 1, 2, 2, 6.0))
sketch14.addConstraint(Sketcher.Constraint("DistanceX", -1, 1, 0, 2, 17.25))
pocket12 = body.newObject("PartDesign::Pocket", "Pocket011")
pocket12.Profile = sketch14
pocket12.Type = "UpToFirst"
pocket12.Reversed = True

# Sketch on XY plane
sketch15 = body.newObject("Sketcher::SketchObject", "Sketch014")
sketch15.AttachmentSupport = (doc.getObject("XY_Plane"), [""])
sketch15.MapMode = "FlatFace"
sketch15.AttachmentOffset = App.Placement(App.Vector(0, 0, -27), App.Rotation())
sketch15.addGeometry(Part.LineSegment(App.Vector(-12, 6, 0), App.Vector(-12, 0, 0)), False)
sketch15.addGeometry(Part.LineSegment(App.Vector(-12, 0, 0), App.Vector(-20, 0, 0)), False)
sketch15.addGeometry(Part.LineSegment(App.Vector(-20, 0, 0), App.Vector(-20, 6, 0)), False)
sketch15.addGeometry(Part.LineSegment(App.Vector(-20, 6, 0), App.Vector(-12, 6, 0)), False)
sketch15.addConstraint(Sketcher.Constraint("Coincident", 0, 2, 1, 1))
sketch15.addConstraint(Sketcher.Constraint("Coincident", 1, 2, 2, 1))
sketch15.addConstraint(Sketcher.Constraint("Coincident", 2, 2, 3, 1))
sketch15.addConstraint(Sketcher.Constraint("Coincident", 3, 2, 0, 1))
sketch15.addConstraint(Sketcher.Constraint("Vertical", 0))
sketch15.addConstraint(Sketcher.Constraint("Horizontal", 1))
sketch15.addConstraint(Sketcher.Constraint("Vertical", 2))
sketch15.addConstraint(Sketcher.Constraint("Horizontal", 3))
sketch15.addConstraint(Sketcher.Constraint("PointOnObject", 0, 2, -1))
sketch15.addConstraint(Sketcher.Constraint("DistanceX", 1, 2, 1, 1, 8.0))
sketch15.addConstraint(Sketcher.Constraint("DistanceY", 0, 2, 0, 1, 6.0))
sketch15.addConstraint(Sketcher.Constraint("DistanceX", 0, 2, -1, 1, 12.3))
pocket13 = body.newObject("PartDesign::Pocket", "Pocket012")
pocket13.Profile = sketch15
pocket13.Type = "UpToFirst"
pocket13.Reversed = True

# Sketch on XZ plane
sketch16 = body.newObject("Sketcher::SketchObject", "Sketch015")
sketch16.AttachmentSupport = (doc.getObject("XZ_Plane"), [""])
sketch16.MapMode = "FlatFace"
sketch16.AttachmentOffset = App.Placement(App.Vector(0, 0, -9.2), App.Rotation())
sketch16.addGeometry(Part.LineSegment(App.Vector(-2.9, -6.3, 0), App.Vector(-2.9, -7.4, 0)), False)
sketch16.addGeometry(Part.ArcOfCircle(Part.Circle(App.Vector(-3.6, -7.4, 0), App.Vector(0, 0, 1), 0.8), math.radians(180), math.radians(360)), False)
sketch16.addGeometry(Part.LineSegment(App.Vector(-4.3, -7.4, 0), App.Vector(-4.3, -6.3, 0)), False)
sketch16.addGeometry(Part.ArcOfCircle(Part.Circle(App.Vector(-3.6, -6.3, 0), App.Vector(0, 0, 1), 0.8), math.radians(0), math.radians(180)), False)
sketch16.addConstraint(Sketcher.Constraint("Tangent", 0, 2, 1, 2))
sketch16.addConstraint(Sketcher.Constraint("Tangent", 1, 1, 2, 1))
sketch16.addConstraint(Sketcher.Constraint("Tangent", 2, 2, 3, 2))
sketch16.addConstraint(Sketcher.Constraint("Tangent", 3, 1, 0, 1))
sketch16.addConstraint(Sketcher.Constraint("Vertical", 0))
sketch16.addConstraint(Sketcher.Constraint("Vertical", 2))
sketch16.addConstraint(Sketcher.Constraint("Radius", 1, 0.75))
sketch16.addConstraint(Sketcher.Constraint("DistanceY", 0, 2, 0, 1, 1.1))
sketch16.addConstraint(Sketcher.Constraint("DistanceX", 1, 3, -1, 1, 3.6))
sketch16.addConstraint(Sketcher.Constraint("DistanceY", 1, 3, -1, 1, 7.4))
pocket14 = body.newObject("PartDesign::Pocket", "Pocket013")
pocket14.Profile = sketch16
pocket14.Type = "UpToFirst"
pocket14.Reversed = True

# Sketch on XZ plane
sketch17 = body.newObject("Sketcher::SketchObject", "Sketch016")
sketch17.AttachmentSupport = (doc.getObject("XZ_Plane"), [""])
sketch17.MapMode = "FlatFace"
sketch17.AttachmentOffset = App.Placement(App.Vector(0, 0, -9.2), App.Rotation())
sketch17.addGeometry(Part.LineSegment(App.Vector(0.9, -6.3, 0), App.Vector(0.9, -7.4, 0)), False)
sketch17.addGeometry(Part.ArcOfCircle(Part.Circle(App.Vector(0.2, -7.4, 0), App.Vector(0, 0, 1), 0.8), math.radians(180), math.radians(360)), False)
sketch17.addGeometry(Part.LineSegment(App.Vector(-0.6, -7.4, 0), App.Vector(-0.6, -6.3, 0)), False)
sketch17.addGeometry(Part.ArcOfCircle(Part.Circle(App.Vector(0.2, -6.3, 0), App.Vector(0, 0, 1), 0.8), math.radians(0), math.radians(180)), False)
sketch17.addConstraint(Sketcher.Constraint("Tangent", 0, 2, 1, 2))
sketch17.addConstraint(Sketcher.Constraint("Tangent", 1, 1, 2, 1))
sketch17.addConstraint(Sketcher.Constraint("Tangent", 2, 2, 3, 2))
sketch17.addConstraint(Sketcher.Constraint("Tangent", 3, 1, 0, 1))
sketch17.addConstraint(Sketcher.Constraint("Vertical", 0))
sketch17.addConstraint(Sketcher.Constraint("Vertical", 2))
sketch17.addConstraint(Sketcher.Constraint("Radius", 1, 0.75))
sketch17.addConstraint(Sketcher.Constraint("DistanceY", 0, 2, 0, 1, 1.1))
sketch17.addConstraint(Sketcher.Constraint("DistanceX", -1, 1, 1, 3, 0.2))
sketch17.addConstraint(Sketcher.Constraint("DistanceY", 1, 3, -1, 1, 7.4))
pocket15 = body.newObject("PartDesign::Pocket", "Pocket014")
pocket15.Profile = sketch17
pocket15.Type = "UpToFirst"
pocket15.Reversed = True

# Sketch on XZ plane
sketch18 = body.newObject("Sketcher::SketchObject", "Sketch017")
sketch18.AttachmentSupport = (doc.getObject("XZ_Plane"), [""])
sketch18.MapMode = "FlatFace"
sketch18.AttachmentOffset = App.Placement(App.Vector(0, 0, -9.2), App.Rotation())
sketch18.addGeometry(Part.LineSegment(App.Vector(4.8, -6.3, 0), App.Vector(4.8, -7.4, 0)), False)
sketch18.addGeometry(Part.ArcOfCircle(Part.Circle(App.Vector(4, -7.4, 0), App.Vector(0, 0, 1), 0.8), math.radians(180), math.radians(360)), False)
sketch18.addGeometry(Part.LineSegment(App.Vector(3.2, -7.4, 0), App.Vector(3.2, -6.3, 0)), False)
sketch18.addGeometry(Part.ArcOfCircle(Part.Circle(App.Vector(4, -6.3, 0), App.Vector(0, 0, 1), 0.8), math.radians(0), math.radians(180)), False)
sketch18.addConstraint(Sketcher.Constraint("Tangent", 0, 2, 1, 2))
sketch18.addConstraint(Sketcher.Constraint("Tangent", 1, 1, 2, 1))
sketch18.addConstraint(Sketcher.Constraint("Tangent", 2, 2, 3, 2))
sketch18.addConstraint(Sketcher.Constraint("Tangent", 3, 1, 0, 1))
sketch18.addConstraint(Sketcher.Constraint("Vertical", 0))
sketch18.addConstraint(Sketcher.Constraint("Vertical", 2))
sketch18.addConstraint(Sketcher.Constraint("Radius", 1, 0.75))
sketch18.addConstraint(Sketcher.Constraint("DistanceY", 0, 2, 0, 1, 1.1))
sketch18.addConstraint(Sketcher.Constraint("DistanceX", -1, 1, 1, 3, 4.0))
sketch18.addConstraint(Sketcher.Constraint("DistanceY", 1, 3, -1, 1, 7.4))
pocket16 = body.newObject("PartDesign::Pocket", "Pocket015")
pocket16.Profile = sketch18
pocket16.Type = "UpToFirst"
pocket16.Reversed = True
doc.recompute()

chamfer4 = body.newObject("PartDesign::Chamfer", "Chamfer003")
chamfer4.Base = (pocket16, edges_at(pocket16, [(-12.3, 3, -27), (-20.3, 3, -27)]))
chamfer4.Size = 0.5

# Sketch on XZ plane
sketch19 = body.newObject("Sketcher::SketchObject", "Sketch018")
sketch19.AttachmentSupport = (doc.getObject("XZ_Plane"), [""])
sketch19.MapMode = "FlatFace"
sketch19.AttachmentOffset = App.Placement(App.Vector(0, 0, -7.2), App.Rotation())
sketch19.addGeometry(Part.LineSegment(App.Vector(12.6, 8, 0), App.Vector(12.6, -5, 0)), False)
sketch19.addGeometry(Part.LineSegment(App.Vector(12.6, -5, 0), App.Vector(20.6, -5, 0)), False)
sketch19.addGeometry(Part.LineSegment(App.Vector(20.6, -5, 0), App.Vector(20.6, 8, 0)), False)
sketch19.addGeometry(Part.LineSegment(App.Vector(20.6, 8, 0), App.Vector(12.6, 8, 0)), False)
sketch19.addGeometry(Part.LineSegment(App.Vector(-10, 18.5, 0), App.Vector(-10, 8, 0)), False)
sketch19.addGeometry(Part.LineSegment(App.Vector(-10, 8, 0), App.Vector(-1, 8, 0)), False)
sketch19.addGeometry(Part.LineSegment(App.Vector(-1, 8, 0), App.Vector(-1, 18.5, 0)), False)
sketch19.addGeometry(Part.LineSegment(App.Vector(-1, 18.5, 0), App.Vector(-10, 18.5, 0)), False)
sketch19.addGeometry(Part.LineSegment(App.Vector(-22.2, 23.8, 0), App.Vector(-22.2, 17, 0)), False)
sketch19.addGeometry(Part.LineSegment(App.Vector(-22.2, 17, 0), App.Vector(-11.2, 17, 0)), False)
sketch19.addGeometry(Part.LineSegment(App.Vector(-11.2, 17, 0), App.Vector(-11.2, 23.8, 0)), False)
sketch19.addGeometry(Part.LineSegment(App.Vector(-11.2, 23.8, 0), App.Vector(-22.2, 23.8, 0)), False)
sketch19.addGeometry(Part.LineSegment(App.Vector(-18.1, -14.6, 0), App.Vector(-18.1, -16.1, 0)), False)
sketch19.addGeometry(Part.LineSegment(App.Vector(-18.1, -16.1, 0), App.Vector(-14.6, -16.1, 0)), False)
sketch19.addGeometry(Part.LineSegment(App.Vector(-14.6, -16.1, 0), App.Vector(-14.6, -14.6, 0)), False)
sketch19.addGeometry(Part.LineSegment(App.Vector(-14.6, -14.6, 0), App.Vector(-18.1, -14.6, 0)), False)
sketch19.addConstraint(Sketcher.Constraint("Coincident", 0, 2, 1, 1))
sketch19.addConstraint(Sketcher.Constraint("Coincident", 1, 2, 2, 1))
sketch19.addConstraint(Sketcher.Constraint("Coincident", 2, 2, 3, 1))
sketch19.addConstraint(Sketcher.Constraint("Coincident", 3, 2, 0, 1))
sketch19.addConstraint(Sketcher.Constraint("Coincident", 4, 2, 5, 1))
sketch19.addConstraint(Sketcher.Constraint("Coincident", 5, 2, 6, 1))
sketch19.addConstraint(Sketcher.Constraint("Coincident", 6, 2, 7, 1))
sketch19.addConstraint(Sketcher.Constraint("Coincident", 7, 2, 4, 1))
sketch19.addConstraint(Sketcher.Constraint("Coincident", 8, 2, 9, 1))
sketch19.addConstraint(Sketcher.Constraint("Coincident", 9, 2, 10, 1))
sketch19.addConstraint(Sketcher.Constraint("Coincident", 10, 2, 11, 1))
sketch19.addConstraint(Sketcher.Constraint("Coincident", 11, 2, 8, 1))
sketch19.addConstraint(Sketcher.Constraint("Coincident", 12, 2, 13, 1))
sketch19.addConstraint(Sketcher.Constraint("Coincident", 13, 2, 14, 1))
sketch19.addConstraint(Sketcher.Constraint("Coincident", 14, 2, 15, 1))
sketch19.addConstraint(Sketcher.Constraint("Coincident", 15, 2, 12, 1))
sketch19.addConstraint(Sketcher.Constraint("Vertical", 0))
sketch19.addConstraint(Sketcher.Constraint("Horizontal", 1))
sketch19.addConstraint(Sketcher.Constraint("Vertical", 2))
sketch19.addConstraint(Sketcher.Constraint("Horizontal", 3))
sketch19.addConstraint(Sketcher.Constraint("Vertical", 4))
sketch19.addConstraint(Sketcher.Constraint("Horizontal", 5))
sketch19.addConstraint(Sketcher.Constraint("Vertical", 6))
sketch19.addConstraint(Sketcher.Constraint("Horizontal", 7))
sketch19.addConstraint(Sketcher.Constraint("Vertical", 8))
sketch19.addConstraint(Sketcher.Constraint("Horizontal", 9))
sketch19.addConstraint(Sketcher.Constraint("Vertical", 10))
sketch19.addConstraint(Sketcher.Constraint("Horizontal", 11))
sketch19.addConstraint(Sketcher.Constraint("Vertical", 12))
sketch19.addConstraint(Sketcher.Constraint("Horizontal", 13))
sketch19.addConstraint(Sketcher.Constraint("Vertical", 14))
sketch19.addConstraint(Sketcher.Constraint("Horizontal", 15))
sketch19.addConstraint(Sketcher.Constraint("Horizontal", 3, 2, 4, 2))
sketch19.addConstraint(Sketcher.Constraint("DistanceX", 5, 1, 5, 2, 9.0))
sketch19.addConstraint(Sketcher.Constraint("DistanceX", 9, 1, 9, 2, 11.0))
sketch19.addConstraint(Sketcher.Constraint("DistanceY", 0, 2, 0, 1, 13.0))
sketch19.addConstraint(Sketcher.Constraint("DistanceX", 13, 1, 13, 2, 3.5))
sketch19.addConstraint(Sketcher.Constraint("DistanceY", 4, 2, 4, 1, 10.5))
sketch19.addConstraint(Sketcher.Constraint("DistanceY", 8, 2, 8, 1, 6.8))
sketch19.addConstraint(Sketcher.Constraint("DistanceY", 12, 2, 12, 1, 1.5))
sketch19.addConstraint(Sketcher.Constraint("DistanceY", 0, 2, -1, 1, 5.0))
sketch19.addConstraint(Sketcher.Constraint("DistanceX", 4, 2, -1, 1, 10.0))
sketch19.addConstraint(Sketcher.Constraint("DistanceY", -1, 1, 8, 2, 17.0))
sketch19.addConstraint(Sketcher.Constraint("DistanceX", 8, 2, -1, 1, 22.2))
sketch19.addConstraint(Sketcher.Constraint("DistanceX", 12, 2, -1, 1, 18.05))
sketch19.addConstraint(Sketcher.Constraint("DistanceY", 12, 2, -1, 1, 16.05))
sketch19.addConstraint(Sketcher.Constraint("DistanceX", -1, 1, 0, 2, 12.644002))
sketch19.addConstraint(Sketcher.Constraint("DistanceX", 1, 1, 1, 2, 7.974589))
pocket17 = body.newObject("PartDesign::Pocket", "Pocket016")
pocket17.Profile = sketch19
pocket17.Length = 1.8
doc.recompute()

fillet3 = body.newObject("PartDesign::Fillet", "Fillet002")
fillet3.Base = (pocket17, edges_at(pocket17, [
    (28, 4.6, 27),
    (-28, 4.6, 27),
    (-28, 4.6, -27),
    (28, 4.6, -27),
]))
fillet3.Radius = 1.5

doc.recompute()
